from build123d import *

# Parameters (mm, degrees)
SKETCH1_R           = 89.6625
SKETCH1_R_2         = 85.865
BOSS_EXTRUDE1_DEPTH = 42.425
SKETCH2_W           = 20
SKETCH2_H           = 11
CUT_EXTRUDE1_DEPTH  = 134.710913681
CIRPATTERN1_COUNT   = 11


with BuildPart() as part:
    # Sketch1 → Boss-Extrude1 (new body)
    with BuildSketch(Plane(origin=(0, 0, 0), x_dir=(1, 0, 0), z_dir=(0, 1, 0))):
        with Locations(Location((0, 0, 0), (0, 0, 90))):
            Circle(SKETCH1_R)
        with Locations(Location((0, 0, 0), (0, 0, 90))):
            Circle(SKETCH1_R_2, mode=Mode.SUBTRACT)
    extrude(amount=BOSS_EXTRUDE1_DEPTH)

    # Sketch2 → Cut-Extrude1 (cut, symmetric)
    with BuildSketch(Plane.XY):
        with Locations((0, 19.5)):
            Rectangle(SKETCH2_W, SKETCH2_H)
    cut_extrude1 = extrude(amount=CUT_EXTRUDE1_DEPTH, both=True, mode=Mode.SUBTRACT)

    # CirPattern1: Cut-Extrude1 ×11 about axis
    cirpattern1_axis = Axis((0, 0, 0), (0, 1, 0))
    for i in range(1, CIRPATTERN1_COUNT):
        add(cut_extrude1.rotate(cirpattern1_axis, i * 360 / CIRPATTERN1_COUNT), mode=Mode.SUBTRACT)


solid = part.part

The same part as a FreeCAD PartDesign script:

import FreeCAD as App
import Part
import Sketcher

V = App.Vector

doc = App.newDocument("Part")
body = doc.addObject("PartDesign::Body", "Body")

sketch1 = body.newObject("Sketcher::SketchObject", "Sketch")
sketch1.AttachmentSupport = (doc.getObject("XZ_Plane"), [""])
sketch1.MapMode = "FlatFace"
sketch1.addGeometry(Part.Circle(V(0, 0, 0), V(0, 0, 1), 90), False)
sketch1.addGeometry(Part.Circle(V(0, 0, 0), V(0, 0, 1), 86), False)
sketch1.addConstraint(Sketcher.Constraint("Coincident", 0, 3, -1, 1))
sketch1.addConstraint(Sketcher.Constraint("Coincident", 1, 3, -1, 1))
sketch1.addConstraint(Sketcher.Constraint("Diameter", 1, 171.73))
sketch1.addConstraint(Sketcher.Constraint("Diameter", 0, 179.325))
pad1 = body.newObject("PartDesign::Pad", "Pad")
pad1.Profile = sketch1
pad1.Length = 42.425
pad1.Reversed = True

sketch2 = body.newObject("Sketcher::SketchObject", "Sketch001")
sketch2.AttachmentSupport = (doc.getObject("XY_Plane"), [""])
sketch2.MapMode = "FlatFace"
sketch2.addGeometry(Part.LineSegment(V(-10, 25, 0), V(-10, 14, 0)), False)
sketch2.addGeometry(Part.LineSegment(V(-10, 14, 0), V(10, 14, 0)), False)
sketch2.addGeometry(Part.LineSegment(V(10, 14, 0), V(10, 25, 0)), False)
sketch2.addGeometry(Part.LineSegment(V(10, 25, 0), V(-10, 25, 0)), False)
sketch2.addConstraint(Sketcher.Constraint("Coincident", 0, 2, 1, 1))
sketch2.addConstraint(Sketcher.Constraint("Coincident", 1, 2, 2, 1))
sketch2.addConstraint(Sketcher.Constraint("Coincident", 2, 2, 3, 1))
sketch2.addConstraint(Sketcher.Constraint("Coincident", 3, 2, 0, 1))
sketch2.addConstraint(Sketcher.Constraint("Vertical", 0))
sketch2.addConstraint(Sketcher.Constraint("Horizontal", 1))
sketch2.addConstraint(Sketcher.Constraint("Vertical", 2))
sketch2.addConstraint(Sketcher.Constraint("Horizontal", 3))
sketch2.addConstraint(Sketcher.Constraint("DistanceX", 1, 1, 1, 2, 20.0))
sketch2.addConstraint(Sketcher.Constraint("DistanceY", 0, 2, 0, 1, 11.0))
sketch2.addConstraint(Sketcher.Constraint("DistanceX", 0, 2, -1, 1, 10.0))
sketch2.addConstraint(Sketcher.Constraint("DistanceY", -1, 1, 0, 2, 14.0))
pocket1 = body.newObject("PartDesign::Pocket", "Pocket")
pocket1.Profile = sketch2
pocket1.Length = 269.421827
pocket1.Midplane = True
doc.recompute()

polarpattern = body.newObject("PartDesign::PolarPattern", "PolarPattern")
polarpattern.Originals = [pocket1]
polarpattern.Axis = (doc.getObject("Y_Axis"), [""])
polarpattern.Angle = 360
polarpattern.Occurrences = 11
body.Tip = polarpattern

doc.recompute()
